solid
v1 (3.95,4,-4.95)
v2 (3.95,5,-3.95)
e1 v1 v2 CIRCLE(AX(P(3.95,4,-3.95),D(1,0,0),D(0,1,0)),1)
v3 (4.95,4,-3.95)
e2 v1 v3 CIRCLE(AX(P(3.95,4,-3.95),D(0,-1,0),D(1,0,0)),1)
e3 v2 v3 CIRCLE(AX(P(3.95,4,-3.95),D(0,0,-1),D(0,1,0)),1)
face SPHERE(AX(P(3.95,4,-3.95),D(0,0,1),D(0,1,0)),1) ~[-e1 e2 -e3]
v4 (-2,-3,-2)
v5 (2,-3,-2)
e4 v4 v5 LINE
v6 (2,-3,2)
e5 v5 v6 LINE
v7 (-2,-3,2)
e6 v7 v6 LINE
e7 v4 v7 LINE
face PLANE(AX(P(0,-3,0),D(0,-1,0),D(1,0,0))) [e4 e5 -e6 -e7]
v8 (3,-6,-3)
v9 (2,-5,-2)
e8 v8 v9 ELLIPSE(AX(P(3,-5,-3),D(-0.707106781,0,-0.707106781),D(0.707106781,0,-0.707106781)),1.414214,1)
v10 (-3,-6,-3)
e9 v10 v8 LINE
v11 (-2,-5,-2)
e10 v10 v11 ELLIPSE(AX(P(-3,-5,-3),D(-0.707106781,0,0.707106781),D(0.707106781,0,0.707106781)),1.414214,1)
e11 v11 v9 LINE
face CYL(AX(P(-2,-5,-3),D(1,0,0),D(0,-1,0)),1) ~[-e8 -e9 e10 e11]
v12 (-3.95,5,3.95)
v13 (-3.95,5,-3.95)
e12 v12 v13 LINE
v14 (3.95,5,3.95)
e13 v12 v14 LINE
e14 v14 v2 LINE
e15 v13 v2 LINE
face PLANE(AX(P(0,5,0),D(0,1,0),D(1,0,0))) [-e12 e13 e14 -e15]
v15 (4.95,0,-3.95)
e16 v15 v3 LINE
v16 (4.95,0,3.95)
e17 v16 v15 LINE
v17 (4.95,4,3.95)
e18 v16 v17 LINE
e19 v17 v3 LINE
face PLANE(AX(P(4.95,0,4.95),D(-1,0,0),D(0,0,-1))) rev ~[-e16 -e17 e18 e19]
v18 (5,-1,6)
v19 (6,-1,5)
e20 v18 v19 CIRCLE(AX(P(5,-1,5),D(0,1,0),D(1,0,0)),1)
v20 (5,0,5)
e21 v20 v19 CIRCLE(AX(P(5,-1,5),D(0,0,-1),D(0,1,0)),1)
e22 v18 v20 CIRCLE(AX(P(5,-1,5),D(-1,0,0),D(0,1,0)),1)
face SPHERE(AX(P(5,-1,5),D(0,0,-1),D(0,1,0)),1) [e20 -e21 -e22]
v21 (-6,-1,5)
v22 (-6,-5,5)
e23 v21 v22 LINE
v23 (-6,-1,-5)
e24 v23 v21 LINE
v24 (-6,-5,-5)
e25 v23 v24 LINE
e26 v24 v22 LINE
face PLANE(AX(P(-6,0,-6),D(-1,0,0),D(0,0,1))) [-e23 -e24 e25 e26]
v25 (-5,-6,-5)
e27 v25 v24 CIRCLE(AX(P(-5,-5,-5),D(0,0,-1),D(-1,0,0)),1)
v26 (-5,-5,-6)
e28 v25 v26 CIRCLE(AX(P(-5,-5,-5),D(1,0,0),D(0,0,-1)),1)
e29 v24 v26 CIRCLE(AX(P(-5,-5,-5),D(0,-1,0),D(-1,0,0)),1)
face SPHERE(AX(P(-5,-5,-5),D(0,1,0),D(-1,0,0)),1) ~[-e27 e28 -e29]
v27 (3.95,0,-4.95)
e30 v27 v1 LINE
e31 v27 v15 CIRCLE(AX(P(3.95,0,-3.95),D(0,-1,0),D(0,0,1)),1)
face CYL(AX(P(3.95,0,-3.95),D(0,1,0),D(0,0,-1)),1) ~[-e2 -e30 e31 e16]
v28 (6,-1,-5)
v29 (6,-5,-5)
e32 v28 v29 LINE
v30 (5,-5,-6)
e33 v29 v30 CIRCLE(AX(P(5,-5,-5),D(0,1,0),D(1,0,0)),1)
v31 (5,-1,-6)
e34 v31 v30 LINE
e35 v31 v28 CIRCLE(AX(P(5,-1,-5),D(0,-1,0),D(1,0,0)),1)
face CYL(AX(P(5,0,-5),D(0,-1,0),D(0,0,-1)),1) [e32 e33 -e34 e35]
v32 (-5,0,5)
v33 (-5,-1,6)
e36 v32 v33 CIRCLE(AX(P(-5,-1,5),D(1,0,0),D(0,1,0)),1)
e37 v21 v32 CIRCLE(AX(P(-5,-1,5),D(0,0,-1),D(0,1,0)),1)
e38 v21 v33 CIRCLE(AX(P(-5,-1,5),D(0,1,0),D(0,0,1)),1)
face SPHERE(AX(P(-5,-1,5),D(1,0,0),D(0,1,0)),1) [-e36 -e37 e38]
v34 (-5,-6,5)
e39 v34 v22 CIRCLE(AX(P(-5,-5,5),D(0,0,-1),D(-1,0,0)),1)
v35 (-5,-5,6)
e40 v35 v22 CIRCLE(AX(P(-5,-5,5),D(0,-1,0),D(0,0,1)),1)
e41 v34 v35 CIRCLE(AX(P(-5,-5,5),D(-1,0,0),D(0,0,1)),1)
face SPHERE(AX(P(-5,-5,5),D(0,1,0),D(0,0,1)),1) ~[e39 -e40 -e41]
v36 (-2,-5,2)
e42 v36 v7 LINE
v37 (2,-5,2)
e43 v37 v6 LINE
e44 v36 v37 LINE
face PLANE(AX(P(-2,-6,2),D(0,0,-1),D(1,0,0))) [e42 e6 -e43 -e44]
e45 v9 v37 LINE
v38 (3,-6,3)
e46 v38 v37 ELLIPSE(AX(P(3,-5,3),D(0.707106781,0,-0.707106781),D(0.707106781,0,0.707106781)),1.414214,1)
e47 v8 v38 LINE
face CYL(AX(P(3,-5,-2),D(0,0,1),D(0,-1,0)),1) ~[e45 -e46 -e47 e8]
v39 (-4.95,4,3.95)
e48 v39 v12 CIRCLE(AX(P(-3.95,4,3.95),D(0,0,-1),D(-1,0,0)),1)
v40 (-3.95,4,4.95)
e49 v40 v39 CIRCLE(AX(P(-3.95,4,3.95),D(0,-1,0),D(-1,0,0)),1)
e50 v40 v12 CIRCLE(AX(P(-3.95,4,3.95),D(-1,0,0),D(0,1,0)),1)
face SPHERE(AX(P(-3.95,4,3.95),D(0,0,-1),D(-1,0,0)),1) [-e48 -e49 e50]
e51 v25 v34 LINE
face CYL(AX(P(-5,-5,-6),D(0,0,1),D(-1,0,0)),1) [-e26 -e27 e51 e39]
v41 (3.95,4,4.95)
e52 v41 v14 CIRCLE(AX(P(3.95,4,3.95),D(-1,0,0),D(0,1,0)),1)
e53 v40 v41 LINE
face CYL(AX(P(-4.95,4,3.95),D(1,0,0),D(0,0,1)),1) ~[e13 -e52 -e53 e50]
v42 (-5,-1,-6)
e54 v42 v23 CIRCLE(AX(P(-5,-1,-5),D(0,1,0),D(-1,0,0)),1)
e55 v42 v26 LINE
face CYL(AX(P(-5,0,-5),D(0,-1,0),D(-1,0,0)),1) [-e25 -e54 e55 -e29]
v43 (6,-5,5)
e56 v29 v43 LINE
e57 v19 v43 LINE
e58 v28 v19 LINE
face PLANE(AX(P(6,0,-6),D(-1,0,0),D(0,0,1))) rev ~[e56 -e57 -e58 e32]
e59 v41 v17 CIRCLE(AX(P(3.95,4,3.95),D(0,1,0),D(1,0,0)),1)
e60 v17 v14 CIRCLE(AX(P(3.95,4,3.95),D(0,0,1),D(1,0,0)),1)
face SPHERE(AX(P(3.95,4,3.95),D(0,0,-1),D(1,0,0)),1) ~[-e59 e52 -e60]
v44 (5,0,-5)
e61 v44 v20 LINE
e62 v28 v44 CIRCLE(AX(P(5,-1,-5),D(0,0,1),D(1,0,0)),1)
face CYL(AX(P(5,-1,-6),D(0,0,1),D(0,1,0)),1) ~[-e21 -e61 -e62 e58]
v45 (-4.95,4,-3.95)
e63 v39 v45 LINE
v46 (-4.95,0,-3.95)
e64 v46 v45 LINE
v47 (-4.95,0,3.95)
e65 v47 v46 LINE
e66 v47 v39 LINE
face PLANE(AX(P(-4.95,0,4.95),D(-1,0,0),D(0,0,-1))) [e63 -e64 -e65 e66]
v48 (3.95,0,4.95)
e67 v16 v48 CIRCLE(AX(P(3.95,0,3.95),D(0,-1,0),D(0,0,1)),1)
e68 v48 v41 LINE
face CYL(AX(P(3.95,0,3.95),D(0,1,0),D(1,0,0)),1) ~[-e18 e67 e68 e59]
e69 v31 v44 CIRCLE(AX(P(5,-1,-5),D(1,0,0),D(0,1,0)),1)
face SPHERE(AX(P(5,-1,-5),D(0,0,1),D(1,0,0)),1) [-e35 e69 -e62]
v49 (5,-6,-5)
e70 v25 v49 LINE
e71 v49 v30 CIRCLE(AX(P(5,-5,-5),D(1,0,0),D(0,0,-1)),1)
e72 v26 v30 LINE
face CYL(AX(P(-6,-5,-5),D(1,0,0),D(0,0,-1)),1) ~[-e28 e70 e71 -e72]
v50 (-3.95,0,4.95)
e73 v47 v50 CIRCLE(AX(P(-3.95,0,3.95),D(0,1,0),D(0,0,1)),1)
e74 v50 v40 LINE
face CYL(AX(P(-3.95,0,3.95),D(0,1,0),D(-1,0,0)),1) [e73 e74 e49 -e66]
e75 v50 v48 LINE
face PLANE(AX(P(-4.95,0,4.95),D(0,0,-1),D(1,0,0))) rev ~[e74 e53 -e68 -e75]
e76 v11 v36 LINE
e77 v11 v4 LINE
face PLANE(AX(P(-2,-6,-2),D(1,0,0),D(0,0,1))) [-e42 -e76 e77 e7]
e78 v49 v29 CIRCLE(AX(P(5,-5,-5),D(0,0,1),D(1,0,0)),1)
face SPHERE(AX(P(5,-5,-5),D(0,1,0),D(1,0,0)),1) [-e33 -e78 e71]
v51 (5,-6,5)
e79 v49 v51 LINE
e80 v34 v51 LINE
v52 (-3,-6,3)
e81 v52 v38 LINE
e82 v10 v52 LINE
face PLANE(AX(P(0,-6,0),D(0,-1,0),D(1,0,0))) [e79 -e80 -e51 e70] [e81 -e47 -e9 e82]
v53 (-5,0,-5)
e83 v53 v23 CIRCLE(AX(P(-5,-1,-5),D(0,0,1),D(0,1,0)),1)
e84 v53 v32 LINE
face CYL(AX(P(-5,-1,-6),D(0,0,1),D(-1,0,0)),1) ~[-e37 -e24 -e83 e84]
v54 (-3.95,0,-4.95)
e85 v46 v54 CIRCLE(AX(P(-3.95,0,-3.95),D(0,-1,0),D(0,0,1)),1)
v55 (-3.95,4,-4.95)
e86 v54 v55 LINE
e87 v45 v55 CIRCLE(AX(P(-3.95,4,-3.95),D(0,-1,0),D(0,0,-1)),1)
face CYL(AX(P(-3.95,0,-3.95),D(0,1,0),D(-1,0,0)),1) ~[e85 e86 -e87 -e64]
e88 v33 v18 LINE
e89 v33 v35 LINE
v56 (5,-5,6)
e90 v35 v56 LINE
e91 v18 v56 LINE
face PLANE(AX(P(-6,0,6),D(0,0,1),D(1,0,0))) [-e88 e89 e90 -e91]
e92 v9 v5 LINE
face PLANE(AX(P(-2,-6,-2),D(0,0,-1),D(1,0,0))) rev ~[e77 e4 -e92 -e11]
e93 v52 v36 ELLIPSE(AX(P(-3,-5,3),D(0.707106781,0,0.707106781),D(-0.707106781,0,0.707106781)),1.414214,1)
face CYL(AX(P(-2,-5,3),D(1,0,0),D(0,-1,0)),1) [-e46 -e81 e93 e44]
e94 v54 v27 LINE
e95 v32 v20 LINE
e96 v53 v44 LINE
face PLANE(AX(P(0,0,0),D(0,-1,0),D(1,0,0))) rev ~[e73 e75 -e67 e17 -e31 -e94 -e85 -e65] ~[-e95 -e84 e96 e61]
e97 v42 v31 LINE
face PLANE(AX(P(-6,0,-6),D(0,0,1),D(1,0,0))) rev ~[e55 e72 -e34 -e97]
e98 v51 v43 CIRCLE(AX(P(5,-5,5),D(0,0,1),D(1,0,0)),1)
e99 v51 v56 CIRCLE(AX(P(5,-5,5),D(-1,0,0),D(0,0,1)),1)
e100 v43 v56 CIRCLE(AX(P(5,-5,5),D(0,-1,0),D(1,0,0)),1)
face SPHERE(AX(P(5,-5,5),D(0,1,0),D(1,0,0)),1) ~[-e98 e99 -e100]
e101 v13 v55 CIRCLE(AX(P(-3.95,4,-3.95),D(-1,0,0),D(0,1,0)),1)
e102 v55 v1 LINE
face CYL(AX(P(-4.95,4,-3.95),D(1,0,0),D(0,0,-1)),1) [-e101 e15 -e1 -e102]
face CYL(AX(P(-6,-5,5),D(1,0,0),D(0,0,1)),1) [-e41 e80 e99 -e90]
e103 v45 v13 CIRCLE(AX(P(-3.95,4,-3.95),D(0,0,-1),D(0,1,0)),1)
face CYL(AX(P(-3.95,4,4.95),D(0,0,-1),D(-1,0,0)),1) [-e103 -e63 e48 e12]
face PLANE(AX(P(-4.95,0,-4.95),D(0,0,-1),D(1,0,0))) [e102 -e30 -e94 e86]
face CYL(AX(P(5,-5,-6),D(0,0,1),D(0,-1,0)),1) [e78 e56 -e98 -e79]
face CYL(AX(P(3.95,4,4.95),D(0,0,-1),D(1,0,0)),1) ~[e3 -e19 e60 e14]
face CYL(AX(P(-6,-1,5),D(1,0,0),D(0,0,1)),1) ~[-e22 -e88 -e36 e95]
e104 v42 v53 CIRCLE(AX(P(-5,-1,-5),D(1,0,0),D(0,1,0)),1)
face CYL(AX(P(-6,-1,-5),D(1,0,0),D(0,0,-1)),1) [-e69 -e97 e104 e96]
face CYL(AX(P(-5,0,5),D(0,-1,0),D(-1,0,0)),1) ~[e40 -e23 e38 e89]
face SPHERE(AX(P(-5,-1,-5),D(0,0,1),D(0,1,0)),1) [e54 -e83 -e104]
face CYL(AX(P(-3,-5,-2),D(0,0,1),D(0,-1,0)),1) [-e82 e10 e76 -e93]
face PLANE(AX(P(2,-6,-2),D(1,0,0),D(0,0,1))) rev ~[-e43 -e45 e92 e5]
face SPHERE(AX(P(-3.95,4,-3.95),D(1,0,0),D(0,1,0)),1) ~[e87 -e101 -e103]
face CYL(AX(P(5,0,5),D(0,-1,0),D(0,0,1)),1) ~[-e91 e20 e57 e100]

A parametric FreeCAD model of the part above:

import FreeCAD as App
import Part
import Sketcher
from FreeCAD import Vector


def edges_at(feature, points):
    """Names of the edges that pass closest to the given points."""
    edges = feature.Shape.Edges
    near = lambda p: min(range(len(edges)), key=lambda i: edges[i].distToShape(Part.Vertex(*p))[0])
    return sorted({f"Edge{near(p) + 1}" for p in points})

doc = App.newDocument("Part")
body = doc.addObject("PartDesign::Body", "Body")

# Sketch on XZ plane
sketch1 = body.newObject("Sketcher::SketchObject", "Sketch")
sketch1.AttachmentSupport = (doc.getObject("XZ_Plane"), [""])
sketch1.MapMode = "FlatFace"
sketch1.addGeometry(Part.LineSegment(Vector(-5, -5, 0), Vector(-5, 5, 0)), False)
sketch1.addGeometry(Part.LineSegment(Vector(-5, 5, 0), Vector(5, 5, 0)), False)
sketch1.addGeometry(Part.LineSegment(Vector(5, 5, 0), Vector(5, -5, 0)), False)
sketch1.addGeometry(Part.LineSegment(Vector(5, -5, 0), Vector(-5, -5, 0)), False)
sketch1.addConstraint(Sketcher.Constraint("Coincident", 0, 2, 1, 1))
sketch1.addConstraint(Sketcher.Constraint("Coincident", 1, 2, 2, 1))
sketch1.addConstraint(Sketcher.Constraint("Coincident", 2, 2, 3, 1))
sketch1.addConstraint(Sketcher.Constraint("Coincident", 3, 2, 0, 1))
sketch1.addConstraint(Sketcher.Constraint("Vertical", 0))
sketch1.addConstraint(Sketcher.Constraint("Horizontal", 1))
sketch1.addConstraint(Sketcher.Constraint("Vertical", 2))
sketch1.addConstraint(Sketcher.Constraint("Horizontal", 3))
sketch1.addConstraint(Sketcher.Constraint("Symmetric", 0, 2, 2, 2, -1, 1))
sketch1.addConstraint(Sketcher.Constraint("Equal", 3, 0))
sketch1.addConstraint(Sketcher.Constraint("DistanceX", 1, 1, 1, 2, 9.9))
pad1 = body.newObject("PartDesign::Pad", "Pad")
pad1.Profile = sketch1
pad1.Length = 5
pad1.Reversed = True

# Sketch on XZ plane
sketch2 = body.newObject("Sketcher::SketchObject", "Sketch001")
sketch2.AttachmentSupport = (doc.getObject("XZ_Plane"), [""])
sketch2.MapMode = "FlatFace"
sketch2.addGeometry(Part.LineSegment(Vector(-6, 6, 0), Vector(-6, -6, 0)), False)
sketch2.addGeometry(Part.LineSegment(Vector(-6, -6, 0), Vector(6, -6, 0)), False)
sketch2.addGeometry(Part.LineSegment(Vector(6, -6, 0), Vector(6, 6, 0)), False)
sketch2.addGeometry(Part.LineSegment(Vector(6, 6, 0), Vector(-6, 6, 0)), False)
sketch2.addConstraint(Sketcher.Constraint("Coincident", 0, 2, 1, 1))
sketch2.addConstraint(Sketcher.Constraint("Coincident", 1, 2, 2, 1))
sketch2.addConstraint(Sketcher.Constraint("Coincident", 2, 2, 3, 1))
sketch2.addConstraint(Sketcher.Constraint("Coincident", 3, 2, 0, 1))
sketch2.addConstraint(Sketcher.Constraint("Vertical", 0))
sketch2.addConstraint(Sketcher.Constraint("Horizontal", 1))
sketch2.addConstraint(Sketcher.Constraint("Vertical", 2))
sketch2.addConstraint(Sketcher.Constraint("Horizontal", 3))
sketch2.addConstraint(Sketcher.Constraint("Symmetric", 0, 2, 2, 2, -1, 1))
sketch2.addConstraint(Sketcher.Constraint("Equal", 3, 0))
sketch2.addConstraint(Sketcher.Constraint("DistanceX", 1, 1, 1, 2, 12.0))
pad2 = body.newObject("PartDesign::Pad", "Pad001")
pad2.Profile = sketch2
pad2.Length = 6

# Sketch on XZ plane
sketch3 = body.newObject("Sketcher::SketchObject", "Sketch002")
sketch3.AttachmentSupport = (doc.getObject("XZ_Plane"), [""])
sketch3.MapMode = "FlatFace"
sketch3.AttachmentOffset = App.Placement(Vector(0, 0, 6), App.Rotation())
sketch3.addGeometry(Part.LineSegment(Vector(-2, 2, 0), Vector(-2, -2, 0)), False)
sketch3.addGeometry(Part.LineSegment(Vector(-2, -2, 0), Vector(2, -2, 0)), False)
sketch3.addGeometry(Part.LineSegment(Vector(2, -2, 0), Vector(2, 2, 0)), False)
sketch3.addGeometry(Part.LineSegment(Vector(2, 2, 0), Vector(-2, 2, 0)), False)
sketch3.addConstraint(Sketcher.Constraint("Coincident", 0, 2, 1, 1))
sketch3.addConstraint(Sketcher.Constraint("Coincident", 1, 2, 2, 1))
sketch3.addConstraint(Sketcher.Constraint("Coincident", 2, 2, 3, 1))
sketch3.addConstraint(Sketcher.Constraint("Coincident", 3, 2, 0, 1))
sketch3.addConstraint(Sketcher.Constraint("Vertical", 0))
sketch3.addConstraint(Sketcher.Constraint("Horizontal", 1))
sketch3.addConstraint(Sketcher.Constraint("Vertical", 2))
sketch3.addConstraint(Sketcher.Constraint("Horizontal", 3))
sketch3.addConstraint(Sketcher.Constraint("Symmetric", 0, 2, 2, 2, -1, 1))
sketch3.addConstraint(Sketcher.Constraint("Equal", 3, 0))
sketch3.addConstraint(Sketcher.Constraint("DistanceX", 1, 1, 1, 2, 4.0))
pocket1 = body.newObject("PartDesign::Pocket", "Pocket")
pocket1.Profile = sketch3
pocket1.Length = 3
doc.recompute()

fillet = body.newObject("PartDesign::Fillet", "Fillet")
fillet.Base = (pocket1, edges_at(pocket1, [
    (4.95, 5, 0),
    (6, 0, 0),
    (6, -3, -6),
    (0, 0, 6),
    (6, -3, 6),
    (-6, 0, 0),
    (-6, -3, 6),
    (0, 0, -6),
    (-6, -3, -6),
    (6, -6, 0),
    (0, -6, 6),
    (-6, -6, 0),
    (0, -6, -6),
    (0, 5, -4.95),
    (-2, -6, 0),
    (0, -6, -2),
    (2, -6, 0),
    (0, -6, 2),
    (-4.95, 5, 0),
    (-4.95, 2.5, -4.95),
    (4.95, 2.5, -4.95),
    (4.95, 2.5, 4.95),
    (-4.95, 2.5, 4.95),
    (0, 5, 4.95),
]))
fillet.Radius = 1

doc.recompute()
